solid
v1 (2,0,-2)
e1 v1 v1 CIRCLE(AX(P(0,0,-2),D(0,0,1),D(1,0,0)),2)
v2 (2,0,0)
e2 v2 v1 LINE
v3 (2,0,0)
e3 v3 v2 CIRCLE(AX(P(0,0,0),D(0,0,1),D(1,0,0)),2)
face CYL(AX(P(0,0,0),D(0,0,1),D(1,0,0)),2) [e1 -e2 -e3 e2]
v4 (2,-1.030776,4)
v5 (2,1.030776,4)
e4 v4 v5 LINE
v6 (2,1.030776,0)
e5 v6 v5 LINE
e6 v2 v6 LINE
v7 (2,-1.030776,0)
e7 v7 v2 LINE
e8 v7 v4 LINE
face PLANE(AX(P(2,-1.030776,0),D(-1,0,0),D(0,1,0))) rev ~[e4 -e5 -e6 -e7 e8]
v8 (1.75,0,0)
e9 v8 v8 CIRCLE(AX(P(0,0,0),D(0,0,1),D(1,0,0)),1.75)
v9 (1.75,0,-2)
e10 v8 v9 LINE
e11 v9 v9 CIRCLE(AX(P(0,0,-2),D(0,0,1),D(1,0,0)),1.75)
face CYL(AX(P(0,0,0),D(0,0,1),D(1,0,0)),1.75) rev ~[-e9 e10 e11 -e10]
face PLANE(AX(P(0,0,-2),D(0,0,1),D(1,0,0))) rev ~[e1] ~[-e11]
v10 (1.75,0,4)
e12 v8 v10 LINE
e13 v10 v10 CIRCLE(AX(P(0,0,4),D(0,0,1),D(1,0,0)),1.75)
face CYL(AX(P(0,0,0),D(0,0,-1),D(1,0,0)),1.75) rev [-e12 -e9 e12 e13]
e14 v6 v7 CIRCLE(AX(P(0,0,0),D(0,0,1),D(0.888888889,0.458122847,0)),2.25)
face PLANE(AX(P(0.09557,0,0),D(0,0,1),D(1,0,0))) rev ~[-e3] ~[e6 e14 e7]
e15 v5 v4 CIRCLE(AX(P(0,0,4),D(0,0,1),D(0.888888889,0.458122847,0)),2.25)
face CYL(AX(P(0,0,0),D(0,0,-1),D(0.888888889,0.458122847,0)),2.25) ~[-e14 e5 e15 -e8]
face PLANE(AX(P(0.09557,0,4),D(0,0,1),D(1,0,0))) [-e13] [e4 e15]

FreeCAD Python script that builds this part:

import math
import FreeCAD as App
import Part
import Sketcher
from FreeCAD import Vector
Q = App.Units.Quantity

doc = App.newDocument("Part")
body = doc.addObject("PartDesign::Body", "Body")

# Sketch on XY plane
sketch1 = doc.addObject("Sketcher::SketchObject", "Sketch")
body.addObject(sketch1)
sketch1.AttachmentSupport = (doc.XY_Plane, [""])
sketch1.MapMode = "FlatFace"
sketch1.addGeometry(Part.LineSegment(Vector(2, -1, 0), Vector(2, 1, 0)), False)
sketch1.addGeometry(Part.ArcOfCircle(Part.Circle(Vector(0, 0, 0), Vector(0, 0, 1), 2.2), math.radians(27), math.radians(333)), False)
sketch1.addGeometry(Part.Circle(Vector(0, 0, 0), Vector(0, 0, 1), 1.8), False)
sketch1.addConstraint(Sketcher.Constraint("Coincident", 0, 1, 1, 2))
sketch1.addConstraint(Sketcher.Constraint("Coincident", 1, 1, 0, 2))
sketch1.addConstraint(Sketcher.Constraint("Vertical", 0))
sketch1.addConstraint(Sketcher.Constraint("Coincident", 1, 3, -1, 1))
sketch1.addConstraint(Sketcher.Constraint("Coincident", 2, 3, -1, 1))
sketch1.addConstraint(Sketcher.Constraint("Diameter", 2, Q("3.5 mm")))
sketch1.addConstraint(Sketcher.Constraint("Radius", 1, Q("2.25 mm")))
sketch1.addConstraint(Sketcher.Constraint("DistanceX", -1, 1, 0, 1, Q("2 mm")))
pad1 = doc.addObject("PartDesign::Pad", "Pad")
body.addObject(pad1)
pad1.Profile = sketch1
pad1.Length = 4

# Sketch on XY plane
sketch2 = doc.addObject("Sketcher::SketchObject", "Sketch001")
body.addObject(sketch2)
sketch2.AttachmentSupport = (doc.XY_Plane, [""])
sketch2.MapMode = "FlatFace"
sketch2.addGeometry(Part.Circle(Vector(0, 0, 0), Vector(0, 0, 1), 2), False)
sketch2.addGeometry(Part.Circle(Vector(0, 0, 0), Vector(0, 0, 1), 1.8), False)
sketch2.addConstraint(Sketcher.Constraint("Coincident", 0, 3, -1, 1))
sketch2.addConstraint(Sketcher.Constraint("Coincident", 1, 3, -1, 1))
sketch2.addConstraint(Sketcher.Constraint("Diameter", 0, Q("4 mm")))
sketch2.addConstraint(Sketcher.Constraint("Diameter", 1, Q("3.5 mm")))
pad2 = doc.addObject("PartDesign::Pad", "Pad001")
body.addObject(pad2)
pad2.Profile = sketch2
pad2.Length = 2
pad2.Reversed = True

doc.recompute()
